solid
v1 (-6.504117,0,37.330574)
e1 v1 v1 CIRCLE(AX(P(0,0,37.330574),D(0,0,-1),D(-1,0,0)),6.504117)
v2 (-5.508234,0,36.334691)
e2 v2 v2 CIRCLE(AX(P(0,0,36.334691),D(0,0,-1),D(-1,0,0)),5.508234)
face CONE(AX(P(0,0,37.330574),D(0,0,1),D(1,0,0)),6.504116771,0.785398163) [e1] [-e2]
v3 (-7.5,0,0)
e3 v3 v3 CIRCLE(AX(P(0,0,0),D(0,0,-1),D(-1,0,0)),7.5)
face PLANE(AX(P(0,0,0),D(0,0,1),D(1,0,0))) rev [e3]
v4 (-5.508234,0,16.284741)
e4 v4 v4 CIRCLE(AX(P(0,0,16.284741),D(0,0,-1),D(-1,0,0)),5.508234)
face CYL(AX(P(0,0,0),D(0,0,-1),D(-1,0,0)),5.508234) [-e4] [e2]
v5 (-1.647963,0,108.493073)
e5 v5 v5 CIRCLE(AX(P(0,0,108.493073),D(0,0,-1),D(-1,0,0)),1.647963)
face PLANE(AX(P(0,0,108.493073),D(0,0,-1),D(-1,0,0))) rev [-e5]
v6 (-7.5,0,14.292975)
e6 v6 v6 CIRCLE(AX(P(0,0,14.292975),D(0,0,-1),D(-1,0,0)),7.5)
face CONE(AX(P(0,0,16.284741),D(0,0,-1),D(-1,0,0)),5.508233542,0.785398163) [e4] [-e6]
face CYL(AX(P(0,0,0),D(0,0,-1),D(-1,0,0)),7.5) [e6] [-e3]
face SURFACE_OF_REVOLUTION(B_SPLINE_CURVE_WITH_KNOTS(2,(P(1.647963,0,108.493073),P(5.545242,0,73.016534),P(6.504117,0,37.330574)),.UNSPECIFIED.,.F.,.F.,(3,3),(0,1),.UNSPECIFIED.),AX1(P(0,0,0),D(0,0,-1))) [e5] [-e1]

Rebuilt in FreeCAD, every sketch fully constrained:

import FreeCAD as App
import Part
import Sketcher

V = App.Vector

doc = App.newDocument("Part")
params = doc.addObject("Spreadsheet::Sheet", "Params")
for row, (alias, value) in enumerate([
    ("sketch1_width", "7.5 mm"),
    ("revolution_angle", "360 deg"),
], start=1):
    params.set(f"A{row}", alias)
    params.set(f"B{row}", "=" + value)
    params.setAlias(f"B{row}", alias)

body = doc.addObject("PartDesign::Body", "Body")

sketch1 = doc.addObject("Sketcher::SketchObject", "Sketch")
body.addObject(sketch1)
sketch1.AttachmentSupport = (doc.XZ_Plane, [""])
sketch1.MapMode = "FlatFace"
sketch1.addGeometry([
    Part.LineSegment(V(0, 0, 0), V(0, 108.493073, 0)),
    Part.LineSegment(V(0, 108.493073, 0), V(1.647963, 108.493073, 0)),
    Part.BSplineCurve([V(6.504117, 37.330574, 0), V(5.545242, 73.016534, 0), V(1.647963, 108.493073, 0)], [3, 3], [0, 1], False, 2, [1, 1, 1], False),
    Part.LineSegment(V(6.504117, 37.330574, 0), V(5.508234, 36.334691, 0)),
    Part.LineSegment(V(5.508234, 36.334691, 0), V(5.508234, 16.284741, 0)),
    Part.LineSegment(V(5.508234, 16.284741, 0), V(7.5, 14.292975, 0)),
    Part.LineSegment(V(7.5, 14.292975, 0), V(7.5, 0, 0)),
    Part.LineSegment(V(7.5, 0, 0), V(0, 0, 0)),
], False)
sketch1.addConstraint([
    Sketcher.Constraint("Block", 2),
    Sketcher.Constraint("Coincident", 0, 2, 1, 1),
    Sketcher.Constraint("Coincident", 1, 2, 2, 2),
    Sketcher.Constraint("Coincident", 2, 1, 3, 1),
    Sketcher.Constraint("Coincident", 3, 2, 4, 1),
    Sketcher.Constraint("Coincident", 4, 2, 5, 1),
    Sketcher.Constraint("Coincident", 5, 2, 6, 1),
    Sketcher.Constraint("Coincident", 6, 2, 7, 1),
    Sketcher.Constraint("Coincident", 7, 2, 0, 1),
    Sketcher.Constraint("Vertical", 0),
    Sketcher.Constraint("Horizontal", 1),
    Sketcher.Constraint("Vertical", 4),
    Sketcher.Constraint("Vertical", 6),
    Sketcher.Constraint("Horizontal", 7),
    Sketcher.Constraint("Coincident", 7, 2, -1, 1),
    Sketcher.Constraint("DistanceX", 7, 2, 7, 1, 7.5),
    Sketcher.Constraint("DistanceY", 4, 2, 4, 1, 20.049949),
    Sketcher.Constraint("Distance", 3, 1.408392),
    Sketcher.Constraint("DistanceY", 6, 2, 6, 1, 14.292975),
    Sketcher.Constraint("DistanceY", -1, 1, 3, 2, 36.334691),
])
sketch1.setExpression("Constraints[15]", "Params.sketch1_width")
revolution = doc.addObject("PartDesign::Revolution", "Revolution")
body.addObject(revolution)
revolution.Profile = sketch1
revolution.ReferenceAxis = (sketch1, ["V_Axis"])
revolution.setExpression("Angle", "Params.revolution_angle")

doc.recompute()
